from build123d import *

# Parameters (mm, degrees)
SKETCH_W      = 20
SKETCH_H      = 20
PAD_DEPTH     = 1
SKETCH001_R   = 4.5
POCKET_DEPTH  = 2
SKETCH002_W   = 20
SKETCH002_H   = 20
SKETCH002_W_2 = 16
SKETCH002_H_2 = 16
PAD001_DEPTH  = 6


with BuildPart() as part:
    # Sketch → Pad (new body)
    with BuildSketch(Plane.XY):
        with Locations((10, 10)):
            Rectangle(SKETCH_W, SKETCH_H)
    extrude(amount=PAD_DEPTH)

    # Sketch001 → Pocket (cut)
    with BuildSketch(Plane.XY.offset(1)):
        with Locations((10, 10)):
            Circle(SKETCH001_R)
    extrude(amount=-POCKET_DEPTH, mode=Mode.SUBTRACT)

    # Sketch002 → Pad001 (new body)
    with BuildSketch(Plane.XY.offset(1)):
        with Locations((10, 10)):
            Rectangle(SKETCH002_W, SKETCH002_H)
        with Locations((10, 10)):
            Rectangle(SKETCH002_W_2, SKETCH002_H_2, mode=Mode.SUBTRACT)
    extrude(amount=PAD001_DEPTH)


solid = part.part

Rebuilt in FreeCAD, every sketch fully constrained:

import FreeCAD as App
import Part
import Sketcher
from FreeCAD import Vector
Q = App.Units.Quantity


def add_polygon(sketch, points):
    """Adds a closed chain of lines whose ends are joined by coincident constraints."""
    first, n = sketch.GeometryCount, len(points)
    for a, b in zip(points, points[1:] + points[:1]):
        sketch.addGeometry(Part.LineSegment(App.Vector(*a, 0), App.Vector(*b, 0)), False)
    for i in range(n):
        sketch.addConstraint(Sketcher.Constraint("Coincident", first + i, 2, first + (i + 1) % n, 1))

doc = App.newDocument("Part")
body = doc.addObject("PartDesign::Body", "Body")

# Sketch on XY plane
sketch1 = doc.addObject("Sketcher::SketchObject", "Sketch")
body.addObject(sketch1)
sketch1.AttachmentSupport = (doc.XY_Plane, [""])
sketch1.MapMode = "FlatFace"
add_polygon(sketch1, [(0, 20), (0, 0), (20, 0), (20, 20)])  # lines 0-3
sketch1.addConstraint(Sketcher.Constraint("Vertical", 0))
sketch1.addConstraint(Sketcher.Constraint("Horizontal", 1))
sketch1.addConstraint(Sketcher.Constraint("Vertical", 2))
sketch1.addConstraint(Sketcher.Constraint("Horizontal", 3))
sketch1.addConstraint(Sketcher.Constraint("Coincident", 0, 2, -1, 1))
sketch1.addConstraint(Sketcher.Constraint("Equal", 3, 0))
sketch1.addConstraint(Sketcher.Constraint("DistanceX", 1, 1, 1, 2, Q("20 mm")))
pad1 = doc.addObject("PartDesign::Pad", "Pad")
body.addObject(pad1)
pad1.Profile = sketch1
pad1.Length = 1

# Sketch on XY plane
sketch2 = doc.addObject("Sketcher::SketchObject", "Sketch001")
body.addObject(sketch2)
sketch2.AttachmentSupport = (doc.XY_Plane, [""])
sketch2.MapMode = "FlatFace"
sketch2.AttachmentOffset = App.Placement(Vector(0, 0, 1), App.Rotation())
sketch2.addGeometry(Part.Circle(Vector(10, 10, 0), Vector(0, 0, 1), 4.5), False)
sketch2.addConstraint(Sketcher.Constraint("Diameter", 0, Q("9 mm")))
sketch2.addConstraint(Sketcher.Constraint("DistanceX", -1, 1, 0, 3, Q("10 mm")))
sketch2.addConstraint(Sketcher.Constraint("DistanceY", -1, 1, 0, 3, Q("10 mm")))
pocket1 = doc.addObject("PartDesign::Pocket", "Pocket")
body.addObject(pocket1)
pocket1.Profile = sketch2
pocket1.Length = 2

# Sketch on XY plane
sketch3 = doc.addObject("Sketcher::SketchObject", "Sketch002")
body.addObject(sketch3)
sketch3.AttachmentSupport = (doc.XY_Plane, [""])
sketch3.MapMode = "FlatFace"
sketch3.AttachmentOffset = App.Placement(Vector(0, 0, 1), App.Rotation())
add_polygon(sketch3, [(0, 20), (0, 0), (20, 0), (20, 20)])  # lines 0-3
add_polygon(sketch3, [(18, 2), (2, 2), (2, 18), (18, 18)])  # lines 4-7
sketch3.addConstraint(Sketcher.Constraint("Vertical", 0))
sketch3.addConstraint(Sketcher.Constraint("Horizontal", 1))
sketch3.addConstraint(Sketcher.Constraint("Vertical", 2))
sketch3.addConstraint(Sketcher.Constraint("Horizontal", 3))
sketch3.addConstraint(Sketcher.Constraint("Horizontal", 4))
sketch3.addConstraint(Sketcher.Constraint("Vertical", 5))
sketch3.addConstraint(Sketcher.Constraint("Horizontal", 6))
sketch3.addConstraint(Sketcher.Constraint("Vertical", 7))
sketch3.addConstraint(Sketcher.Constraint("Coincident", 0, 2, -1, 1))
sketch3.addConstraint(Sketcher.Constraint("Equal", 3, 0))
sketch3.addConstraint(Sketcher.Constraint("Equal", 6, 5))
sketch3.addConstraint(Sketcher.Constraint("DistanceX", 1, 1, 1, 2, Q("20 mm")))
sketch3.addConstraint(Sketcher.Constraint("DistanceX", 4, 2, 4, 1, Q("16 mm")))
sketch3.addConstraint(Sketcher.Constraint("DistanceX", -1, 1, 4, 2, Q("2 mm")))
sketch3.addConstraint(Sketcher.Constraint("DistanceY", -1, 1, 4, 2, Q("2 mm")))
pad2 = doc.addObject("PartDesign::Pad", "Pad001")
body.addObject(pad2)
pad2.Profile = sketch3
pad2.Length = 6

doc.recompute()
